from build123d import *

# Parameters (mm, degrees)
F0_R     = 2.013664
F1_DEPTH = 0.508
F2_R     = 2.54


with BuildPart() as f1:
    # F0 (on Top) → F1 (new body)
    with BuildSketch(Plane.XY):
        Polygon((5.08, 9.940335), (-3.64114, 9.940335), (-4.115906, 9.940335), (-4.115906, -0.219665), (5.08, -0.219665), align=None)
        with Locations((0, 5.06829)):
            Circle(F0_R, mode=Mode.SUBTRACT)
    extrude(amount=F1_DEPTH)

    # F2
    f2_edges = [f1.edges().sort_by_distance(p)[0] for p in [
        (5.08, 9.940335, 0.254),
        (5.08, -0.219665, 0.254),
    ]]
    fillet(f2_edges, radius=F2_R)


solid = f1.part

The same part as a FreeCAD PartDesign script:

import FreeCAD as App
import Part
import Sketcher

V = App.Vector
Q = App.Units.Quantity


def edges_at(feature, points):
    """Names of the edges that pass closest to the given points."""
    edges = feature.Shape.Edges
    near = lambda p: min(range(len(edges)), key=lambda i: edges[i].distToShape(Part.Vertex(*p))[0])
    return sorted({f"Edge{near(p) + 1}" for p in points})


def add_polygon(sketch, points):
    """Adds a closed chain of lines whose ends are joined by coincident constraints."""
    first, n = sketch.GeometryCount, len(points)
    for a, b in zip(points, points[1:] + points[:1]):
        sketch.addGeometry(Part.LineSegment(App.Vector(*a, 0), App.Vector(*b, 0)), False)
    for i in range(n):
        sketch.addConstraint(Sketcher.Constraint("Coincident", first + i, 2, first + (i + 1) % n, 1))

doc = App.newDocument("Part")
body = doc.addObject("PartDesign::Body", "Body")

# Sketch on XY plane
sketch1 = body.newObject("Sketcher::SketchObject", "Sketch")
sketch1.AttachmentSupport = (doc.getObject("XY_Plane"), [""])
sketch1.MapMode = "FlatFace"
add_polygon(sketch1, [(5.08, 9.940335), (-4.115906, 9.940335), (-4.115906, -0.219665), (5.08, -0.219665)])  # lines 0-3
sketch1.addGeometry(Part.Circle(V(0, 5.06829, 0), V(0, 0, 1), 2.013664), False)  # 4
sketch1.addConstraint(Sketcher.Constraint("Horizontal", 0))
sketch1.addConstraint(Sketcher.Constraint("Vertical", 1))
sketch1.addConstraint(Sketcher.Constraint("Horizontal", 2))
sketch1.addConstraint(Sketcher.Constraint("Vertical", 3))
sketch1.addConstraint(Sketcher.Constraint("PointOnObject", 4, 3, -2))
sketch1.addConstraint(Sketcher.Constraint("DistanceY", 1, 2, 1, 1, Q("0.4 in")))
sketch1.addConstraint(Sketcher.Constraint("DistanceX", -1, 1, 2, 2, Q("0.2 in")))
sketch1.addConstraint(Sketcher.Constraint("Diameter", 4, Q("4.027328 mm")))
sketch1.addConstraint(Sketcher.Constraint("DistanceX", 0, 2, 0, 1, Q("9.195906 mm")))
sketch1.addConstraint(Sketcher.Constraint("DistanceY", -1, 1, 4, 3, Q("5.06829 mm")))
sketch1.addConstraint(Sketcher.Constraint("DistanceY", -1, 1, 0, 2, Q("9.940335 mm")))
pad1 = body.newObject("PartDesign::Pad", "Pad")
pad1.Profile = sketch1
pad1.Length = Q("0.02 in")
doc.recompute()

fillet = body.newObject("PartDesign::Fillet", "Fillet")
fillet.Base = (pad1, edges_at(pad1, [(5.08, 9.94, 0.254), (5.08, -0.22, 0.254)]))
fillet.Radius = Q("0.1 in")

doc.recompute()
